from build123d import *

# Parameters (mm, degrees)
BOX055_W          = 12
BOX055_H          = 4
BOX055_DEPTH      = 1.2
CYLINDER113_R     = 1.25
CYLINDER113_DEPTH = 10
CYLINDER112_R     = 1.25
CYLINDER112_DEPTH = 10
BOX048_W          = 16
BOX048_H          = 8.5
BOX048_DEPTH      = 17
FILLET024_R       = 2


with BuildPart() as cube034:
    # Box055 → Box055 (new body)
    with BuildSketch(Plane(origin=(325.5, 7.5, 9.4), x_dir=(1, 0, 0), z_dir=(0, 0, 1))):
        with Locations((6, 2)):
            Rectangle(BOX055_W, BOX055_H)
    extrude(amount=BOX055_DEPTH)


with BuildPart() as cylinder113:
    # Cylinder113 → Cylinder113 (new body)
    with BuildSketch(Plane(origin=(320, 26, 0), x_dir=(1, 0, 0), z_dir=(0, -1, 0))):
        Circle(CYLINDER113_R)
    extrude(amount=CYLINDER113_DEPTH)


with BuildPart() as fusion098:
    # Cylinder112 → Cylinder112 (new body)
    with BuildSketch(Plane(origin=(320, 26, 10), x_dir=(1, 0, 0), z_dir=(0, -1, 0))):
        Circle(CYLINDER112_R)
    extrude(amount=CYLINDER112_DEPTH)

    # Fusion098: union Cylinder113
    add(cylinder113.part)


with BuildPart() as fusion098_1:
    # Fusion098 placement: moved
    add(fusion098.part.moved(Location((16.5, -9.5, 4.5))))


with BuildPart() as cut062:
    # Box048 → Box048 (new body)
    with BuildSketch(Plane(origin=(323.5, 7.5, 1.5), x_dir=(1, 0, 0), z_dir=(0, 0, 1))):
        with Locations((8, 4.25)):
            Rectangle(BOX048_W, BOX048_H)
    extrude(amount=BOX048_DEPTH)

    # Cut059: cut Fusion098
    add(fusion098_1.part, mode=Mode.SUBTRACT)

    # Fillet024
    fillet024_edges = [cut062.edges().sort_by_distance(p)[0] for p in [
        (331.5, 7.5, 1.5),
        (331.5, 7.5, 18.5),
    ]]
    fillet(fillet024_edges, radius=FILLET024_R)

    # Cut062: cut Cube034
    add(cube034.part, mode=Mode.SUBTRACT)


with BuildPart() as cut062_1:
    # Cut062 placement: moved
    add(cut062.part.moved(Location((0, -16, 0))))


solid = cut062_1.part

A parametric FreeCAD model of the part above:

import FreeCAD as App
import Part
import Sketcher
from FreeCAD import Vector


def edges_at(feature, points):
    """Names of the edges that pass closest to the given points."""
    edges = feature.Shape.Edges
    near = lambda p: min(range(len(edges)), key=lambda i: edges[i].distToShape(Part.Vertex(*p))[0])
    return sorted({f"Edge{near(p) + 1}" for p in points})

doc = App.newDocument("Part")
body = doc.addObject("PartDesign::Body", "Body")

# Sketch on XY plane
sketch1 = doc.addObject("Sketcher::SketchObject", "Sketch")
body.addObject(sketch1)
sketch1.AttachmentSupport = (doc.XY_Plane, [""])
sketch1.MapMode = "FlatFace"
sketch1.AttachmentOffset = App.Placement(Vector(0, 0, 9.4), App.Rotation())
sketch1.addGeometry(Part.LineSegment(Vector(325.5, 11.5, 0), Vector(325.5, 7.5, 0)), False)
sketch1.addGeometry(Part.LineSegment(Vector(325.5, 7.5, 0), Vector(337.5, 7.5, 0)), False)
sketch1.addGeometry(Part.LineSegment(Vector(337.5, 7.5, 0), Vector(337.5, 11.5, 0)), False)
sketch1.addGeometry(Part.LineSegment(Vector(337.5, 11.5, 0), Vector(325.5, 11.5, 0)), False)
sketch1.addConstraint(Sketcher.Constraint("Coincident", 0, 2, 1, 1))
sketch1.addConstraint(Sketcher.Constraint("Coincident", 1, 2, 2, 1))
sketch1.addConstraint(Sketcher.Constraint("Coincident", 2, 2, 3, 1))
sketch1.addConstraint(Sketcher.Constraint("Coincident", 3, 2, 0, 1))
sketch1.addConstraint(Sketcher.Constraint("Vertical", 0))
sketch1.addConstraint(Sketcher.Constraint("Horizontal", 1))
sketch1.addConstraint(Sketcher.Constraint("Vertical", 2))
sketch1.addConstraint(Sketcher.Constraint("Horizontal", 3))
sketch1.addConstraint(Sketcher.Constraint("DistanceX", 1, 1, 1, 2, 12.0))
sketch1.addConstraint(Sketcher.Constraint("DistanceY", 0, 2, 0, 1, 4.0))
sketch1.addConstraint(Sketcher.Constraint("DistanceX", -1, 1, 0, 2, 325.5))
sketch1.addConstraint(Sketcher.Constraint("DistanceY", -1, 1, 0, 2, 7.5))
pad1 = doc.addObject("PartDesign::Pad", "Pad")
body.addObject(pad1)
pad1.Profile = sketch1
pad1.Length = 1.2
body2 = doc.addObject("PartDesign::Body", "Body001")

# Sketch on XZ plane
sketch2 = doc.addObject("Sketcher::SketchObject", "Sketch001")
body2.addObject(sketch2)
sketch2.AttachmentSupport = (doc.getObject("XZ_Plane001"), [""])
sketch2.MapMode = "FlatFace"
sketch2.AttachmentOffset = App.Placement(Vector(0, 0, -26), App.Rotation())
sketch2.addGeometry(Part.Circle(Vector(320, 0, 0), Vector(0, 0, 1), 1.2), False)
sketch2.addConstraint(Sketcher.Constraint("PointOnObject", 0, 3, -1))
sketch2.addConstraint(Sketcher.Constraint("Diameter", 0, 2.5))
sketch2.addConstraint(Sketcher.Constraint("DistanceX", -1, 1, 0, 3, 320.0))
pad2 = doc.addObject("PartDesign::Pad", "Pad001")
body2.addObject(pad2)
pad2.Profile = sketch2
pad2.Length = 10
body3 = doc.addObject("PartDesign::Body", "Body002")
body3.AllowCompound = True

# Sketch on XZ plane
sketch3 = doc.addObject("Sketcher::SketchObject", "Sketch002")
body3.addObject(sketch3)
sketch3.AttachmentSupport = (doc.getObject("XZ_Plane002"), [""])
sketch3.MapMode = "FlatFace"
sketch3.AttachmentOffset = App.Placement(Vector(0, 0, -26), App.Rotation())
sketch3.addGeometry(Part.Circle(Vector(320, 10, 0), Vector(0, 0, 1), 1.2), False)
sketch3.addConstraint(Sketcher.Constraint("Diameter", 0, 2.5))
sketch3.addConstraint(Sketcher.Constraint("DistanceX", -1, 1, 0, 3, 320.0))
sketch3.addConstraint(Sketcher.Constraint("DistanceY", -1, 1, 0, 3, 10.0))
pad3 = doc.addObject("PartDesign::Pad", "Pad002")
body3.addObject(pad3)
pad3.Profile = sketch3
pad3.Length = 10
doc.recompute()

boolean = doc.addObject("PartDesign::Boolean", "Boolean")
body3.addObject(boolean)
boolean.Type = "Fuse"
boolean.addObjects([body2])
body4 = doc.addObject("PartDesign::Body", "Body003")
body4.AllowCompound = True
doc.recompute()

body3.Placement = App.Placement(Vector(16.5, -9.5, 4.5), App.Rotation(Vector(0, 0, 1), 0))
boolean2 = doc.addObject("PartDesign::Boolean", "Boolean001")
body4.addObject(boolean2)
boolean2.Type = "Fuse"
boolean2.addObjects([body3])
body5 = doc.addObject("PartDesign::Body", "Body004")

# Sketch on XY plane
sketch4 = doc.addObject("Sketcher::SketchObject", "Sketch003")
body5.addObject(sketch4)
sketch4.AttachmentSupport = (doc.getObject("XY_Plane004"), [""])
sketch4.MapMode = "FlatFace"
sketch4.AttachmentOffset = App.Placement(Vector(0, 0, 1.5), App.Rotation())
sketch4.addGeometry(Part.LineSegment(Vector(324, 16, 0), Vector(324, 8, 0)), False)
sketch4.addGeometry(Part.LineSegment(Vector(324, 8, 0), Vector(340, 8, 0)), False)
sketch4.addGeometry(Part.LineSegment(Vector(340, 8, 0), Vector(340, 16, 0)), False)
sketch4.addGeometry(Part.LineSegment(Vector(340, 16, 0), Vector(324, 16, 0)), False)
sketch4.addConstraint(Sketcher.Constraint("Coincident", 0, 2, 1, 1))
sketch4.addConstraint(Sketcher.Constraint("Coincident", 1, 2, 2, 1))
sketch4.addConstraint(Sketcher.Constraint("Coincident", 2, 2, 3, 1))
sketch4.addConstraint(Sketcher.Constraint("Coincident", 3, 2, 0, 1))
sketch4.addConstraint(Sketcher.Constraint("Vertical", 0))
sketch4.addConstraint(Sketcher.Constraint("Horizontal", 1))
sketch4.addConstraint(Sketcher.Constraint("Vertical", 2))
sketch4.addConstraint(Sketcher.Constraint("Horizontal", 3))
sketch4.addConstraint(Sketcher.Constraint("DistanceX", 1, 1, 1, 2, 16.0))
sketch4.addConstraint(Sketcher.Constraint("DistanceY", 0, 2, 0, 1, 8.5))
sketch4.addConstraint(Sketcher.Constraint("DistanceY", -1, 1, 2, 2, 16.0))
sketch4.addConstraint(Sketcher.Constraint("DistanceX", -1, 1, 0, 2, 323.5))
pad4 = doc.addObject("PartDesign::Pad", "Pad003")
body5.addObject(pad4)
pad4.Profile = sketch4
pad4.Length = 17
doc.recompute()

boolean3 = doc.addObject("PartDesign::Boolean", "Boolean002")
body5.addObject(boolean3)
boolean3.Type = "Cut"
boolean3.addObjects([body4])
doc.recompute()

fillet = doc.addObject("PartDesign::Fillet", "Fillet")
body5.addObject(fillet)
fillet.Base = (boolean3, edges_at(boolean3, [(331.5, 7.5, 1.5), (331.5, 7.5, 18.5)]))
fillet.Radius = 2
doc.recompute()

boolean4 = doc.addObject("PartDesign::Boolean", "Boolean003")
body5.addObject(boolean4)
boolean4.Type = "Cut"
boolean4.addObjects([body])
body6 = doc.addObject("PartDesign::Body", "Body005")
doc.recompute()

body5.Placement = App.Placement(Vector(0, -16, 0), App.Rotation(Vector(0, 0, 1), 0))
boolean5 = doc.addObject("PartDesign::Boolean", "Boolean004")
body6.addObject(boolean5)
boolean5.Type = "Fuse"
boolean5.addObjects([body5])

doc.recompute()
